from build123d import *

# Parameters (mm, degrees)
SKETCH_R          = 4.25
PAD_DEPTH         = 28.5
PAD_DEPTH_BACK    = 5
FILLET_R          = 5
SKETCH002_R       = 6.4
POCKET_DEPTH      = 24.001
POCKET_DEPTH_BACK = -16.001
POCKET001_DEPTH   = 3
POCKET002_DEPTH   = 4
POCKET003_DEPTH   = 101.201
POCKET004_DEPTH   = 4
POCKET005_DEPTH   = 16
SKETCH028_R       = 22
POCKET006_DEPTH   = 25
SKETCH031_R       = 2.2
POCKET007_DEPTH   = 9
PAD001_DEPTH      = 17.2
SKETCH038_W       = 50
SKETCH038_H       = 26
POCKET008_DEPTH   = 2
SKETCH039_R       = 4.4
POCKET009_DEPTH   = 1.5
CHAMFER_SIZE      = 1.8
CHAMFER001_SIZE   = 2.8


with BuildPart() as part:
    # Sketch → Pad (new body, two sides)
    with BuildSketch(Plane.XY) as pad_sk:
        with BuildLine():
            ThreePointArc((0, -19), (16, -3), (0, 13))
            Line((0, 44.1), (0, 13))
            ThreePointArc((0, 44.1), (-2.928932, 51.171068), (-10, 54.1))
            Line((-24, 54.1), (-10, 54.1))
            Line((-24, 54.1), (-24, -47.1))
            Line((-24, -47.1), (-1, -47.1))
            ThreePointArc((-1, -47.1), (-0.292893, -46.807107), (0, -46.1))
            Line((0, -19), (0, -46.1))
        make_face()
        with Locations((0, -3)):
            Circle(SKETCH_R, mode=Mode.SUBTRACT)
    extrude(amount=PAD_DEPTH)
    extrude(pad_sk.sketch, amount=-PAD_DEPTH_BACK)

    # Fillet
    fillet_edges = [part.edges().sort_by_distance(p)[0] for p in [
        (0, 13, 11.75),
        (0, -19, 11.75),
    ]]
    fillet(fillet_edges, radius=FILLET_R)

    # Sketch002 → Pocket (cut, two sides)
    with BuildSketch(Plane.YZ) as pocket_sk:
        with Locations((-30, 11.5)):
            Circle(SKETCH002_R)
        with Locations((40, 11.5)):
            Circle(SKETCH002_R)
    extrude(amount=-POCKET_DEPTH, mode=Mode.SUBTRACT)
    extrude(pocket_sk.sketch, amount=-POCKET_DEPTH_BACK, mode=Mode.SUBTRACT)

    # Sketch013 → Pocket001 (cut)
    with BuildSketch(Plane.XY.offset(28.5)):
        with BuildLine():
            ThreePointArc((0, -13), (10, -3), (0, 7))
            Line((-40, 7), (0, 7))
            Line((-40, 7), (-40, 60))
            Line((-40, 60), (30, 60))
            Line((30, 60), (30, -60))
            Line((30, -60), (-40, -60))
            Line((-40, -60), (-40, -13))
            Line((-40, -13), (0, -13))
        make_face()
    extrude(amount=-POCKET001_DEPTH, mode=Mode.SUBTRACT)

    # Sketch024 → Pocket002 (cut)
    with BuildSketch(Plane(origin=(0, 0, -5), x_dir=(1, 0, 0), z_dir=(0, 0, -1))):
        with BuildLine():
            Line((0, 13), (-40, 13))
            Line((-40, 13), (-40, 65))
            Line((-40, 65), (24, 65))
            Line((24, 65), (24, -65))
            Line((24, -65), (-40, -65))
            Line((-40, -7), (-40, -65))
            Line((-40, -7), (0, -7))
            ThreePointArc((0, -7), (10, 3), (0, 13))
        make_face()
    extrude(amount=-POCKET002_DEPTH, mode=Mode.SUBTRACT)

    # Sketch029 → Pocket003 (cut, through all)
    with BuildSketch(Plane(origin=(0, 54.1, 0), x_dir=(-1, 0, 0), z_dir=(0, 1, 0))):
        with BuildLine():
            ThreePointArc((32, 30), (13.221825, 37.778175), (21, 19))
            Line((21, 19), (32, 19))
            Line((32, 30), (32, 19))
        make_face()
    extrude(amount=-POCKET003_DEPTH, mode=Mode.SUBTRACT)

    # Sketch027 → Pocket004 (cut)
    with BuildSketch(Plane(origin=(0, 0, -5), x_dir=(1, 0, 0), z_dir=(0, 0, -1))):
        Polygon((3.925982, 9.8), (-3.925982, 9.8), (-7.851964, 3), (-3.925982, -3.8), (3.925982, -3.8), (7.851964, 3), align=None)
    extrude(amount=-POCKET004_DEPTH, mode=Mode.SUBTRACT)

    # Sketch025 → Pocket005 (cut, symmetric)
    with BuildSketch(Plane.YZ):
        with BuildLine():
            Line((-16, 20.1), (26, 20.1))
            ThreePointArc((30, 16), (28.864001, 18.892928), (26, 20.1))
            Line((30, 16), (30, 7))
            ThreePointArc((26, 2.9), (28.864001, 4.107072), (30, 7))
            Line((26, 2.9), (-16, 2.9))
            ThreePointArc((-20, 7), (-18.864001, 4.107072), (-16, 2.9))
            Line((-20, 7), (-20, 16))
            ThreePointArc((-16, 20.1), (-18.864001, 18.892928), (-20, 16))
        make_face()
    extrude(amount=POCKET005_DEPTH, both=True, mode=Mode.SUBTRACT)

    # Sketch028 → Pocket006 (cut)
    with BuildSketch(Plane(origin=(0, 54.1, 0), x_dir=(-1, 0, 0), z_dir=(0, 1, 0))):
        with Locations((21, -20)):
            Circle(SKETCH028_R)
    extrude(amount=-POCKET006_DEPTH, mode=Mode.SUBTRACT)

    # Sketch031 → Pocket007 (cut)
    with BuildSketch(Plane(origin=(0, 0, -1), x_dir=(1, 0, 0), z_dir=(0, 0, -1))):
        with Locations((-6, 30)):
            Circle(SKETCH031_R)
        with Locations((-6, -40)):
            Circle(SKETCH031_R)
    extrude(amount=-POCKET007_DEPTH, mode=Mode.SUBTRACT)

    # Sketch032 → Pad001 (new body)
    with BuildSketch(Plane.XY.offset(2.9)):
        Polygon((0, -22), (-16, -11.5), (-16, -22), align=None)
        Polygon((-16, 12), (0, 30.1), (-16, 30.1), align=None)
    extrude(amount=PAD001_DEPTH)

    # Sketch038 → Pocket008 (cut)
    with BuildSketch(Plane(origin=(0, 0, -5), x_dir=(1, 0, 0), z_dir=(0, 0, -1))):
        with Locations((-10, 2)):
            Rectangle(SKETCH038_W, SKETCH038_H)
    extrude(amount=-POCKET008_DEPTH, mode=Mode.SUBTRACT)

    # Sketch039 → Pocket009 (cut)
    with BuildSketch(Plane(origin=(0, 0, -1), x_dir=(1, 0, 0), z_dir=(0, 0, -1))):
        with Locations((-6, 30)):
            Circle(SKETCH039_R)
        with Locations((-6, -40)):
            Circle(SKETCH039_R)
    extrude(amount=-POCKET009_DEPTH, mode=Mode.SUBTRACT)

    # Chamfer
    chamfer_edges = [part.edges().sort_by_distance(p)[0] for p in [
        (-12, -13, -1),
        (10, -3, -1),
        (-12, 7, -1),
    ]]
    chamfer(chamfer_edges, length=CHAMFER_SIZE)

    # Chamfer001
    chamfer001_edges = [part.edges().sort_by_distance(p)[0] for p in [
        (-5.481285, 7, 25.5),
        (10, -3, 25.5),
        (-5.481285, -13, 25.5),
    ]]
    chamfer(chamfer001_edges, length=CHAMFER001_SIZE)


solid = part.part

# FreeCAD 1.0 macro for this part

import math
import FreeCAD as App
import Part
import Sketcher

V = App.Vector
Q = App.Units.Quantity


def edges_at(feature, points):
    """Names of the edges that pass closest to the given points."""
    edges = feature.Shape.Edges
    near = lambda p: min(range(len(edges)), key=lambda i: edges[i].distToShape(Part.Vertex(*p))[0])
    return sorted({f"Edge{near(p) + 1}" for p in points})


def add_polygon(sketch, points):
    """Adds a closed chain of lines whose ends are joined by coincident constraints."""
    first, n = sketch.GeometryCount, len(points)
    for a, b in zip(points, points[1:] + points[:1]):
        sketch.addGeometry(Part.LineSegment(App.Vector(*a, 0), App.Vector(*b, 0)), False)
    for i in range(n):
        sketch.addConstraint(Sketcher.Constraint("Coincident", first + i, 2, first + (i + 1) % n, 1))

doc = App.newDocument("Part")
params = doc.addObject("Spreadsheet::Sheet", "Params")
for row, (alias, value) in enumerate([
    ("sketch1_radius", "16 mm"),
    ("sketch1_radius2", "9.999999 mm"),
    ("sketch1_radius3", "0.999999 mm"),
    ("sketch1_diameter", "8.5 mm"),
    ("sketch1_width", "14 mm"),
    ("pad1_length", "28.5 mm"),
    ("pad1_length2", "5 mm"),
    ("fillet_radius", "5 mm"),
    ("sketch2_diameter", "12.8 mm"),
    ("sketch3_radius", "10 mm"),
    ("sketch3_width", "40 mm"),
    ("sketch3_width2", "70 mm"),
    ("sketch3_height", "47 mm"),
    ("sketch3_height2", "120 mm"),
    ("pocket2_length", "3 mm"),
    ("sketch4_radius", "10 mm"),
    ("sketch4_width", "40 mm"),
    ("sketch4_width2", "64 mm"),
    ("sketch4_height", "58 mm"),
    ("sketch4_height2", "130 mm"),
    ("pocket3_length", "4 mm"),
    ("sketch5_radius", "11 mm"),
    ("pocket5_length", "4 mm"),
    ("sketch7_width", "42 mm"),
    ("sketch7_height", "9 mm"),
    ("pocket6_length", "32 mm"),
    ("sketch8_diameter", "44 mm"),
    ("pocket7_length", "25 mm"),
    ("sketch9_diameter", "4.4 mm"),
    ("pocket8_length", "9 mm"),
    ("sketch10_width", "16 mm"),
    ("sketch10_height", "10.5 mm"),
    ("sketch10_height2", "18.1 mm"),
    ("pad2_length", "17.2 mm"),
    ("sketch11_width", "50 mm"),
    ("sketch11_height", "26 mm"),
    ("pocket9_length", "2 mm"),
    ("sketch12_diameter", "8.8 mm"),
    ("pocket10_length", "1.5 mm"),
    ("chamfer_size", "1.8 mm"),
    ("chamfer2_size", "2.8 mm"),
], start=1):
    params.set(f"A{row}", alias)
    params.set(f"B{row}", "=" + value)
    params.setAlias(f"B{row}", alias)

body = doc.addObject("PartDesign::Body", "Body")

sketch1 = body.newObject("Sketcher::SketchObject", "Sketch")
sketch1.AttachmentSupport = (doc.getObject("XY_Plane"), [""])
sketch1.MapMode = "FlatFace"
sketch1.addGeometry([
    Part.ArcOfCircle(Part.Circle(V(0, -3, 0), V(0, 0, 1), 16), math.radians(-90), math.radians(90)),
    Part.LineSegment(V(0, 13, 0), V(0, 44.1, 0)),
    Part.ArcOfCircle(Part.Circle(V(-10, 44.1, 0), V(0, 0, 1), 10), math.radians(0), math.radians(90)),
    Part.LineSegment(V(-10, 54.1, 0), V(-24, 54.1, 0)),
    Part.LineSegment(V(-24, 54.1, 0), V(-24, -47.1, 0)),
    Part.LineSegment(V(-24, -47.1, 0), V(-1, -47.1, 0)),
    Part.ArcOfCircle(Part.Circle(V(-1, -46.1, 0), V(0, 0, 1), 1), math.radians(-90), math.radians(0)),
    Part.LineSegment(V(0, -46.1, 0), V(0, -19, 0)),
    Part.Circle(V(0, -3, 0), V(0, 0, 1), 4.2),
], False)
sketch1.addConstraint([
    Sketcher.Constraint("Coincident", 0, 2, 1, 1),
    Sketcher.Constraint("Tangent", 1, 2, 2, 1),
    Sketcher.Constraint("Tangent", 2, 2, 3, 1),
    Sketcher.Constraint("Coincident", 3, 2, 4, 1),
    Sketcher.Constraint("Coincident", 4, 2, 5, 1),
    Sketcher.Constraint("Tangent", 5, 2, 6, 1),
    Sketcher.Constraint("Tangent", 6, 2, 7, 1),
    Sketcher.Constraint("Coincident", 7, 2, 0, 1),
    Sketcher.Constraint("Vertical", 1),
    Sketcher.Constraint("Horizontal", 3),
    Sketcher.Constraint("Vertical", 4),
    Sketcher.Constraint("Horizontal", 5),
    Sketcher.Constraint("Vertical", 7),
    Sketcher.Constraint("Coincident", 8, 3, 0, 3),
    Sketcher.Constraint("PointOnObject", 0, 3, -2),
    Sketcher.Constraint("PointOnObject", 0, 2, -2),
    Sketcher.Constraint("PointOnObject", 6, 2, -2),
    Sketcher.Constraint("Radius", 0, 16.0),
    Sketcher.Constraint("Radius", 2, 9.999999),
    Sketcher.Constraint("Radius", 6, 0.999999),
    Sketcher.Constraint("Diameter", 8, 8.5),
    Sketcher.Constraint("DistanceX", 3, 2, 3, 1, 14.0),
    Sketcher.Constraint("DistanceY", 1, 1, 1, 2, 31.1),
    Sketcher.Constraint("DistanceY", 4, 2, 4, 1, 101.2),
    Sketcher.Constraint("DistanceY", 0, 3, -1, 1, 3.0),
])
sketch1.setExpression("Constraints[17]", "Params.sketch1_radius")
sketch1.setExpression("Constraints[18]", "Params.sketch1_radius2")
sketch1.setExpression("Constraints[19]", "Params.sketch1_radius3")
sketch1.setExpression("Constraints[20]", "Params.sketch1_diameter")
sketch1.setExpression("Constraints[21]", "Params.sketch1_width")
pad1 = body.newObject("PartDesign::Pad", "Pad")
pad1.Profile = sketch1
pad1.Type = "TwoLengths"
pad1.setExpression("Length", "Params.pad1_length")
pad1.setExpression("Length2", "Params.pad1_length2")
doc.recompute()

fillet = body.newObject("PartDesign::Fillet", "Fillet")
fillet.Base = (pad1, edges_at(pad1, [(0, 13, 11.75), (0, -19, 11.75)]))
fillet.setExpression("Radius", "Params.fillet_radius")

sketch2 = body.newObject("Sketcher::SketchObject", "Sketch001")
sketch2.AttachmentSupport = (doc.getObject("YZ_Plane"), [""])
sketch2.MapMode = "FlatFace"
sketch2.addGeometry([
    Part.Circle(V(-30, 12, 0), V(0, 0, 1), 6),
    Part.Circle(V(40, 12, 0), V(0, 0, 1), 6),
], False)
sketch2.addConstraint([
    Sketcher.Constraint("Equal", 0, 1),
    Sketcher.Constraint("Horizontal", 0, 3, 1, 3),
    Sketcher.Constraint("Diameter", 0, 12.8),
    Sketcher.Constraint("DistanceX", 0, 3, -1, 1, 30.0),
    Sketcher.Constraint("DistanceX", -1, 1, 1, 3, 40.0),
    Sketcher.Constraint("DistanceY", -1, 1, 0, 3, 11.5),
])
sketch2.setExpression("Constraints[2]", "Params.sketch2_diameter")
pocket1 = body.newObject("PartDesign::Pocket", "Pocket")
pocket1.Profile = sketch2
pocket1.Type = "ThroughAll"
pocket1.Midplane = True

sketch3 = body.newObject("Sketcher::SketchObject", "Sketch002")
sketch3.AttachmentSupport = (doc.getObject("XY_Plane"), [""])
sketch3.MapMode = "FlatFace"
sketch3.AttachmentOffset = App.Placement(V(0, 0, 28.5), App.Rotation())
sketch3.addGeometry([
    Part.ArcOfCircle(Part.Circle(V(0, -3, 0), V(0, 0, 1), 10), math.radians(-90), math.radians(90)),
    Part.LineSegment(V(0, -13, 0), V(-40, -13, 0)),
    Part.LineSegment(V(-40, -13, 0), V(-40, -60, 0)),
    Part.LineSegment(V(-40, -60, 0), V(30, -60, 0)),
    Part.LineSegment(V(30, -60, 0), V(30, 60, 0)),
    Part.LineSegment(V(30, 60, 0), V(-40, 60, 0)),
    Part.LineSegment(V(-40, 60, 0), V(-40, 7, 0)),
    Part.LineSegment(V(-40, 7, 0), V(0, 7, 0)),
], False)
sketch3.addConstraint([
    Sketcher.Constraint("Tangent", 0, 1, 1, 1),
    Sketcher.Constraint("Coincident", 1, 2, 2, 1),
    Sketcher.Constraint("Coincident", 2, 2, 3, 1),
    Sketcher.Constraint("Coincident", 3, 2, 4, 1),
    Sketcher.Constraint("Coincident", 4, 2, 5, 1),
    Sketcher.Constraint("Coincident", 5, 2, 6, 1),
    Sketcher.Constraint("Coincident", 6, 2, 7, 1),
    Sketcher.Constraint("Tangent", 7, 2, 0, 2),
    Sketcher.Constraint("Horizontal", 1),
    Sketcher.Constraint("Vertical", 2),
    Sketcher.Constraint("Horizontal", 3),
    Sketcher.Constraint("Vertical", 4),
    Sketcher.Constraint("Horizontal", 5),
    Sketcher.Constraint("Vertical", 6),
    Sketcher.Constraint("Horizontal", 7),
    Sketcher.Constraint("Symmetric", 2, 2, 5, 2, -1),
    Sketcher.Constraint("PointOnObject", 0, 3, -2),
    Sketcher.Constraint("Radius", 0, 10.0),
    Sketcher.Constraint("DistanceX", 1, 2, 1, 1, 40.0),
    Sketcher.Constraint("DistanceX", 3, 1, 3, 2, 70.0),
    Sketcher.Constraint("DistanceY", 2, 2, 2, 1, 47.0),
    Sketcher.Constraint("DistanceY", 4, 1, 4, 2, 120.0),
])
sketch3.setExpression("Constraints[17]", "Params.sketch3_radius")
sketch3.setExpression("Constraints[18]", "Params.sketch3_width")
sketch3.setExpression("Constraints[19]", "Params.sketch3_width2")
sketch3.setExpression("Constraints[20]", "Params.sketch3_height")
sketch3.setExpression("Constraints[21]", "Params.sketch3_height2")
pocket2 = body.newObject("PartDesign::Pocket", "Pocket001")
pocket2.Profile = sketch3
pocket2.setExpression("Length", "Params.pocket2_length")

sketch4 = body.newObject("Sketcher::SketchObject", "Sketch003")
sketch4.AttachmentSupport = (doc.getObject("XY_Plane"), [""])
sketch4.MapMode = "FlatFace"
sketch4.AttachmentOffset = App.Placement(V(0, 0, -5), App.Rotation())
sketch4.addGeometry([
    Part.LineSegment(V(-40, -13, 0), V(0, -13, 0)),
    Part.ArcOfCircle(Part.Circle(V(0, -3, 0), V(0, 0, 1), 10), math.radians(-90), math.radians(90)),
    Part.LineSegment(V(0, 7, 0), V(-40, 7, 0)),
    Part.LineSegment(V(-40, 7, 0), V(-40, 65, 0)),
    Part.LineSegment(V(-40, 65, 0), V(24, 65, 0)),
    Part.LineSegment(V(24, 65, 0), V(24, -65, 0)),
    Part.LineSegment(V(24, -65, 0), V(-40, -65, 0)),
    Part.LineSegment(V(-40, -65, 0), V(-40, -13, 0)),
], False)
sketch4.addConstraint([
    Sketcher.Constraint("Tangent", 0, 2, 1, 1),
    Sketcher.Constraint("Tangent", 1, 2, 2, 1),
    Sketcher.Constraint("Coincident", 2, 2, 3, 1),
    Sketcher.Constraint("Coincident", 3, 2, 4, 1),
    Sketcher.Constraint("Coincident", 4, 2, 5, 1),
    Sketcher.Constraint("Coincident", 5, 2, 6, 1),
    Sketcher.Constraint("Coincident", 6, 2, 7, 1),
    Sketcher.Constraint("Coincident", 7, 2, 0, 1),
    Sketcher.Constraint("Horizontal", 0),
    Sketcher.Constraint("Horizontal", 2),
    Sketcher.Constraint("Vertical", 3),
    Sketcher.Constraint("Horizontal", 4),
    Sketcher.Constraint("Vertical", 5),
    Sketcher.Constraint("Horizontal", 6),
    Sketcher.Constraint("Vertical", 7),
    Sketcher.Constraint("Symmetric", 3, 2, 6, 2, -1),
    Sketcher.Constraint("PointOnObject", 1, 3, -2),
    Sketcher.Constraint("Radius", 1, 10.0),
    Sketcher.Constraint("DistanceX", 0, 1, 0, 2, 40.0),
    Sketcher.Constraint("DistanceX", 4, 1, 4, 2, 64.0),
    Sketcher.Constraint("DistanceY", 3, 1, 3, 2, 58.0),
    Sketcher.Constraint("DistanceY", 5, 2, 5, 1, 130.0),
])
sketch4.setExpression("Constraints[17]", "Params.sketch4_radius")
sketch4.setExpression("Constraints[18]", "Params.sketch4_width")
sketch4.setExpression("Constraints[19]", "Params.sketch4_width2")
sketch4.setExpression("Constraints[20]", "Params.sketch4_height")
sketch4.setExpression("Constraints[21]", "Params.sketch4_height2")
pocket3 = body.newObject("PartDesign::Pocket", "Pocket002")
pocket3.Profile = sketch4
pocket3.setExpression("Length", "Params.pocket3_length")
pocket3.Reversed = True

sketch5 = body.newObject("Sketcher::SketchObject", "Sketch004")
sketch5.AttachmentSupport = (doc.getObject("XZ_Plane"), [""])
sketch5.MapMode = "FlatFace"
sketch5.AttachmentOffset = App.Placement(V(0, 0, -54.1), App.Rotation())
sketch5.addGeometry([
    Part.ArcOfCircle(Part.Circle(V(-21, 30, 0), V(0, 0, 1), 11), math.radians(-90), math.radians(180)),
    Part.LineSegment(V(-21, 19, 0), V(-32, 19, 0)),
    Part.LineSegment(V(-32, 19, 0), V(-32, 30, 0)),
], False)
sketch5.addConstraint([
    Sketcher.Constraint("Tangent", 0, 1, 1, 1),
    Sketcher.Constraint("Coincident", 1, 2, 2, 1),
    Sketcher.Constraint("Tangent", 2, 2, 0, 2),
    Sketcher.Constraint("Horizontal", 1),
    Sketcher.Constraint("Vertical", 2),
    Sketcher.Constraint("Radius", 0, 11.0),
    Sketcher.Constraint("DistanceX", 0, 3, -1, 1, 21.0),
    Sketcher.Constraint("DistanceY", -1, 1, 0, 3, 30.0),
])
sketch5.setExpression("Constraints[5]", "Params.sketch5_radius")
pocket4 = body.newObject("PartDesign::Pocket", "Pocket003")
pocket4.Profile = sketch5
pocket4.Type = "ThroughAll"
pocket4.Reversed = True

sketch6 = body.newObject("Sketcher::SketchObject", "Sketch005")
sketch6.AttachmentSupport = (doc.getObject("XY_Plane"), [""])
sketch6.MapMode = "FlatFace"
sketch6.AttachmentOffset = App.Placement(V(0, 0, -5), App.Rotation())
add_polygon(sketch6, [(4, -10), (-4, -10), (-8, -3), (-4, 4), (4, 4), (8, -3)])
sketch6.addConstraint([
    Sketcher.Constraint("Horizontal", 0),
    Sketcher.Constraint("Horizontal", 3),
    Sketcher.Constraint("Symmetric", 1, 2, 4, 2, -2),
    Sketcher.Constraint("Parallel", 1, 4),
    Sketcher.Constraint("Parallel", 2, 5),
    Sketcher.Constraint("Vertical", 0, 2, 2, 2),
    Sketcher.Constraint("Vertical", 3, 2, 5, 2),
    Sketcher.Constraint("Angle", 1, Q("120.000001 deg")),
    Sketcher.Constraint("DistanceY", 1, 2, -1, 1, 3.0),
    Sketcher.Constraint("DistanceY", 0, 2, -1, 1, 9.8),
    Sketcher.Constraint("DistanceX", 0, 2, 0, 1, 7.851964),
])
pocket5 = body.newObject("PartDesign::Pocket", "Pocket004")
pocket5.Profile = sketch6
pocket5.setExpression("Length", "Params.pocket5_length")
pocket5.Reversed = True

sketch7 = body.newObject("Sketcher::SketchObject", "Sketch006")
sketch7.AttachmentSupport = (doc.getObject("YZ_Plane"), [""])
sketch7.MapMode = "FlatFace"
sketch7.addGeometry([
    Part.LineSegment(V(26, 20.1, 0), V(-16, 20.1, 0)),
    Part.ArcOfCircle(Part.Circle(V(-16, 16.1, 0), V(0, 0, 1), 4), math.radians(90), math.radians(181)),
    Part.LineSegment(V(-20, 16, 0), V(-20, 7, 0)),
    Part.ArcOfCircle(Part.Circle(V(-16, 6.9, 0), V(0, 0, 1), 4), math.radians(179), math.radians(270)),
    Part.LineSegment(V(-16, 2.9, 0), V(26, 2.9, 0)),
    Part.ArcOfCircle(Part.Circle(V(26, 6.9, 0), V(0, 0, 1), 4), math.radians(-90), math.radians(1)),
    Part.LineSegment(V(30, 7, 0), V(30, 16, 0)),
    Part.ArcOfCircle(Part.Circle(V(26, 16.1, 0), V(0, 0, 1), 4), math.radians(-1), math.radians(90)),
], False)
sketch7.addConstraint([
    Sketcher.Constraint("Tangent", 0, 2, 1, 1),
    Sketcher.Constraint("Coincident", 1, 2, 2, 1),
    Sketcher.Constraint("Coincident", 2, 2, 3, 1),
    Sketcher.Constraint("Tangent", 3, 2, 4, 1),
    Sketcher.Constraint("Tangent", 4, 2, 5, 1),
    Sketcher.Constraint("Coincident", 5, 2, 6, 1),
    Sketcher.Constraint("Coincident", 6, 2, 7, 1),
    Sketcher.Constraint("Tangent", 7, 2, 0, 1),
    Sketcher.Constraint("Horizontal", 0),
    Sketcher.Constraint("Vertical", 2),
    Sketcher.Constraint("Horizontal", 4),
    Sketcher.Constraint("Vertical", 6),
    Sketcher.Constraint("Equal", 1, 3),
    Sketcher.Constraint("Equal", 3, 5),
    Sketcher.Constraint("Equal", 5, 7),
    Sketcher.Constraint("Horizontal", 2, 2, 5, 2),
    Sketcher.Constraint("Horizontal", 1, 2, 6, 2),
    Sketcher.Constraint("Vertical", 1, 3, 3, 3),
    Sketcher.Constraint("DistanceX", 0, 2, 0, 1, 42.0),
    Sketcher.Constraint("DistanceY", 2, 2, 2, 1, 9.0),
    Sketcher.Constraint("DistanceX", 1, 3, -1, 1, 16.000001),
    Sketcher.Constraint("DistanceX", 1, 2, -1, 1, 20.0),
    Sketcher.Constraint("DistanceY", -1, 1, 1, 2, 16.0),
    Sketcher.Constraint("DistanceY", -1, 1, 0, 2, 20.1),
])
sketch7.setExpression("Constraints[18]", "Params.sketch7_width")
sketch7.setExpression("Constraints[19]", "Params.sketch7_height")
pocket6 = body.newObject("PartDesign::Pocket", "Pocket005")
pocket6.Profile = sketch7
pocket6.setExpression("Length", "Params.pocket6_length")
pocket6.Midplane = True

sketch8 = body.newObject("Sketcher::SketchObject", "Sketch007")
sketch8.AttachmentSupport = (doc.getObject("XZ_Plane"), [""])
sketch8.MapMode = "FlatFace"
sketch8.AttachmentOffset = App.Placement(V(0, 0, -54.1), App.Rotation())
sketch8.addGeometry(Part.Circle(V(-21, -20, 0), V(0, 0, 1), 22), False)
sketch8.addConstraint([
    Sketcher.Constraint("Diameter", 0, 44.0),
    Sketcher.Constraint("DistanceX", 0, 3, -1, 1, 21.0),
    Sketcher.Constraint("DistanceY", 0, 3, -1, 1, 20.0),
])
sketch8.setExpression("Constraints[0]", "Params.sketch8_diameter")
pocket7 = body.newObject("PartDesign::Pocket", "Pocket006")
pocket7.Profile = sketch8
pocket7.setExpression("Length", "Params.pocket7_length")
pocket7.Reversed = True

sketch9 = body.newObject("Sketcher::SketchObject", "Sketch008")
sketch9.AttachmentSupport = (doc.getObject("XY_Plane"), [""])
sketch9.MapMode = "FlatFace"
sketch9.AttachmentOffset = App.Placement(V(0, 0, -1), App.Rotation())
sketch9.addGeometry([
    Part.Circle(V(-6, -30, 0), V(0, 0, 1), 2.2),
    Part.Circle(V(-6, 40, 0), V(0, 0, 1), 2.2),
], False)
sketch9.addConstraint([
    Sketcher.Constraint("Equal", 0, 1),
    Sketcher.Constraint("Vertical", 0, 3, 1, 3),
    Sketcher.Constraint("Diameter", 0, 4.4),
    Sketcher.Constraint("DistanceX", 0, 3, -1, 1, 6.0),
    Sketcher.Constraint("DistanceY", 0, 3, -1, 1, 30.0),
    Sketcher.Constraint("DistanceY", -1, 1, 1, 3, 40.0),
])
sketch9.setExpression("Constraints[2]", "Params.sketch9_diameter")
pocket8 = body.newObject("PartDesign::Pocket", "Pocket007")
pocket8.Profile = sketch9
pocket8.setExpression("Length", "Params.pocket8_length")
pocket8.Reversed = True

sketch10 = body.newObject("Sketcher::SketchObject", "Sketch009")
sketch10.AttachmentSupport = (doc.getObject("XY_Plane"), [""])
sketch10.MapMode = "FlatFace"
sketch10.AttachmentOffset = App.Placement(V(0, 0, 2.9), App.Rotation())
add_polygon(sketch10, [(0, -22), (-16, -12), (-16, -22)])
add_polygon(sketch10, [(-16, 12), (0, 30), (-16, 30)])
sketch10.addConstraint([
    Sketcher.Constraint("Vertical", 1),
    Sketcher.Constraint("Horizontal", 2),
    Sketcher.Constraint("Horizontal", 4),
    Sketcher.Constraint("Vertical", 5),
    Sketcher.Constraint("PointOnObject", 2, 2, -2),
    Sketcher.Constraint("PointOnObject", 3, 2, -2),
    Sketcher.Constraint("Vertical", 1, 2, 4, 2),
    Sketcher.Constraint("DistanceX", 2, 1, 2, 2, 16.0),
    Sketcher.Constraint("DistanceY", 1, 2, 1, 1, 10.5),
    Sketcher.Constraint("DistanceY", 5, 2, 5, 1, 18.1),
    Sketcher.Constraint("DistanceY", 1, 2, -1, 1, 22.0),
    Sketcher.Constraint("DistanceY", -1, 1, 5, 2, 12.0),
])
sketch10.setExpression("Constraints[13]", "Params.sketch10_width")
sketch10.setExpression("Constraints[14]", "Params.sketch10_height")
sketch10.setExpression("Constraints[15]", "Params.sketch10_height2")
pad2 = body.newObject("PartDesign::Pad", "Pad001")
pad2.Profile = sketch10
pad2.setExpression("Length", "Params.pad2_length")

sketch11 = body.newObject("Sketcher::SketchObject", "Sketch010")
sketch11.AttachmentSupport = (doc.getObject("XY_Plane"), [""])
sketch11.MapMode = "FlatFace"
sketch11.AttachmentOffset = App.Placement(V(0, 0, -5), App.Rotation())
add_polygon(sketch11, [(-35, -15), (-35, 11), (15, 11), (15, -15)])
sketch11.addConstraint([
    Sketcher.Constraint("Vertical", 0),
    Sketcher.Constraint("Horizontal", 1),
    Sketcher.Constraint("Vertical", 2),
    Sketcher.Constraint("Horizontal", 3),
    Sketcher.Constraint("DistanceX", 1, 1, 1, 2, 50.0),
    Sketcher.Constraint("DistanceY", 0, 1, 0, 2, 26.0),
    Sketcher.Constraint("DistanceX", 0, 2, -1, 1, 35.0),
    Sketcher.Constraint("DistanceY", -1, 1, 0, 2, 11.0),
])
sketch11.setExpression("Constraints[8]", "Params.sketch11_width")
sketch11.setExpression("Constraints[9]", "Params.sketch11_height")
pocket9 = body.newObject("PartDesign::Pocket", "Pocket008")
pocket9.Profile = sketch11
pocket9.setExpression("Length", "Params.pocket9_length")
pocket9.Reversed = True

sketch12 = body.newObject("Sketcher::SketchObject", "Sketch011")
sketch12.AttachmentSupport = (doc.getObject("XY_Plane"), [""])
sketch12.MapMode = "FlatFace"
sketch12.AttachmentOffset = App.Placement(V(0, 0, -1), App.Rotation())
sketch12.addGeometry([
    Part.Circle(V(-6, -30, 0), V(0, 0, 1), 4.4),
    Part.Circle(V(-6, 40, 0), V(0, 0, 1), 4.4),
], False)
sketch12.addConstraint([
    Sketcher.Constraint("Equal", 0, 1),
    Sketcher.Constraint("Vertical", 0, 3, 1, 3),
    Sketcher.Constraint("Diameter", 0, 8.8),
    Sketcher.Constraint("DistanceX", 0, 3, -1, 1, 6.0),
    Sketcher.Constraint("DistanceY", 0, 3, -1, 1, 30.0),
    Sketcher.Constraint("DistanceY", -1, 1, 1, 3, 40.0),
])
sketch12.setExpression("Constraints[2]", "Params.sketch12_diameter")
pocket10 = body.newObject("PartDesign::Pocket", "Pocket009")
pocket10.Profile = sketch12
pocket10.setExpression("Length", "Params.pocket10_length")
pocket10.Reversed = True
doc.recompute()

chamfer = body.newObject("PartDesign::Chamfer", "Chamfer")
chamfer.Base = (pocket10, edges_at(pocket10, [(-12, -13, -1), (10, -3, -1), (-12, 7, -1)]))
chamfer.setExpression("Size", "Params.chamfer_size")
doc.recompute()

chamfer2 = body.newObject("PartDesign::Chamfer", "Chamfer001")
chamfer2.Base = (chamfer, edges_at(chamfer, [(-5.481, 7, 25.5), (10, -3, 25.5), (-5.481, -13, 25.5)]))
chamfer2.setExpression("Size", "Params.chamfer2_size")

doc.recompute()
